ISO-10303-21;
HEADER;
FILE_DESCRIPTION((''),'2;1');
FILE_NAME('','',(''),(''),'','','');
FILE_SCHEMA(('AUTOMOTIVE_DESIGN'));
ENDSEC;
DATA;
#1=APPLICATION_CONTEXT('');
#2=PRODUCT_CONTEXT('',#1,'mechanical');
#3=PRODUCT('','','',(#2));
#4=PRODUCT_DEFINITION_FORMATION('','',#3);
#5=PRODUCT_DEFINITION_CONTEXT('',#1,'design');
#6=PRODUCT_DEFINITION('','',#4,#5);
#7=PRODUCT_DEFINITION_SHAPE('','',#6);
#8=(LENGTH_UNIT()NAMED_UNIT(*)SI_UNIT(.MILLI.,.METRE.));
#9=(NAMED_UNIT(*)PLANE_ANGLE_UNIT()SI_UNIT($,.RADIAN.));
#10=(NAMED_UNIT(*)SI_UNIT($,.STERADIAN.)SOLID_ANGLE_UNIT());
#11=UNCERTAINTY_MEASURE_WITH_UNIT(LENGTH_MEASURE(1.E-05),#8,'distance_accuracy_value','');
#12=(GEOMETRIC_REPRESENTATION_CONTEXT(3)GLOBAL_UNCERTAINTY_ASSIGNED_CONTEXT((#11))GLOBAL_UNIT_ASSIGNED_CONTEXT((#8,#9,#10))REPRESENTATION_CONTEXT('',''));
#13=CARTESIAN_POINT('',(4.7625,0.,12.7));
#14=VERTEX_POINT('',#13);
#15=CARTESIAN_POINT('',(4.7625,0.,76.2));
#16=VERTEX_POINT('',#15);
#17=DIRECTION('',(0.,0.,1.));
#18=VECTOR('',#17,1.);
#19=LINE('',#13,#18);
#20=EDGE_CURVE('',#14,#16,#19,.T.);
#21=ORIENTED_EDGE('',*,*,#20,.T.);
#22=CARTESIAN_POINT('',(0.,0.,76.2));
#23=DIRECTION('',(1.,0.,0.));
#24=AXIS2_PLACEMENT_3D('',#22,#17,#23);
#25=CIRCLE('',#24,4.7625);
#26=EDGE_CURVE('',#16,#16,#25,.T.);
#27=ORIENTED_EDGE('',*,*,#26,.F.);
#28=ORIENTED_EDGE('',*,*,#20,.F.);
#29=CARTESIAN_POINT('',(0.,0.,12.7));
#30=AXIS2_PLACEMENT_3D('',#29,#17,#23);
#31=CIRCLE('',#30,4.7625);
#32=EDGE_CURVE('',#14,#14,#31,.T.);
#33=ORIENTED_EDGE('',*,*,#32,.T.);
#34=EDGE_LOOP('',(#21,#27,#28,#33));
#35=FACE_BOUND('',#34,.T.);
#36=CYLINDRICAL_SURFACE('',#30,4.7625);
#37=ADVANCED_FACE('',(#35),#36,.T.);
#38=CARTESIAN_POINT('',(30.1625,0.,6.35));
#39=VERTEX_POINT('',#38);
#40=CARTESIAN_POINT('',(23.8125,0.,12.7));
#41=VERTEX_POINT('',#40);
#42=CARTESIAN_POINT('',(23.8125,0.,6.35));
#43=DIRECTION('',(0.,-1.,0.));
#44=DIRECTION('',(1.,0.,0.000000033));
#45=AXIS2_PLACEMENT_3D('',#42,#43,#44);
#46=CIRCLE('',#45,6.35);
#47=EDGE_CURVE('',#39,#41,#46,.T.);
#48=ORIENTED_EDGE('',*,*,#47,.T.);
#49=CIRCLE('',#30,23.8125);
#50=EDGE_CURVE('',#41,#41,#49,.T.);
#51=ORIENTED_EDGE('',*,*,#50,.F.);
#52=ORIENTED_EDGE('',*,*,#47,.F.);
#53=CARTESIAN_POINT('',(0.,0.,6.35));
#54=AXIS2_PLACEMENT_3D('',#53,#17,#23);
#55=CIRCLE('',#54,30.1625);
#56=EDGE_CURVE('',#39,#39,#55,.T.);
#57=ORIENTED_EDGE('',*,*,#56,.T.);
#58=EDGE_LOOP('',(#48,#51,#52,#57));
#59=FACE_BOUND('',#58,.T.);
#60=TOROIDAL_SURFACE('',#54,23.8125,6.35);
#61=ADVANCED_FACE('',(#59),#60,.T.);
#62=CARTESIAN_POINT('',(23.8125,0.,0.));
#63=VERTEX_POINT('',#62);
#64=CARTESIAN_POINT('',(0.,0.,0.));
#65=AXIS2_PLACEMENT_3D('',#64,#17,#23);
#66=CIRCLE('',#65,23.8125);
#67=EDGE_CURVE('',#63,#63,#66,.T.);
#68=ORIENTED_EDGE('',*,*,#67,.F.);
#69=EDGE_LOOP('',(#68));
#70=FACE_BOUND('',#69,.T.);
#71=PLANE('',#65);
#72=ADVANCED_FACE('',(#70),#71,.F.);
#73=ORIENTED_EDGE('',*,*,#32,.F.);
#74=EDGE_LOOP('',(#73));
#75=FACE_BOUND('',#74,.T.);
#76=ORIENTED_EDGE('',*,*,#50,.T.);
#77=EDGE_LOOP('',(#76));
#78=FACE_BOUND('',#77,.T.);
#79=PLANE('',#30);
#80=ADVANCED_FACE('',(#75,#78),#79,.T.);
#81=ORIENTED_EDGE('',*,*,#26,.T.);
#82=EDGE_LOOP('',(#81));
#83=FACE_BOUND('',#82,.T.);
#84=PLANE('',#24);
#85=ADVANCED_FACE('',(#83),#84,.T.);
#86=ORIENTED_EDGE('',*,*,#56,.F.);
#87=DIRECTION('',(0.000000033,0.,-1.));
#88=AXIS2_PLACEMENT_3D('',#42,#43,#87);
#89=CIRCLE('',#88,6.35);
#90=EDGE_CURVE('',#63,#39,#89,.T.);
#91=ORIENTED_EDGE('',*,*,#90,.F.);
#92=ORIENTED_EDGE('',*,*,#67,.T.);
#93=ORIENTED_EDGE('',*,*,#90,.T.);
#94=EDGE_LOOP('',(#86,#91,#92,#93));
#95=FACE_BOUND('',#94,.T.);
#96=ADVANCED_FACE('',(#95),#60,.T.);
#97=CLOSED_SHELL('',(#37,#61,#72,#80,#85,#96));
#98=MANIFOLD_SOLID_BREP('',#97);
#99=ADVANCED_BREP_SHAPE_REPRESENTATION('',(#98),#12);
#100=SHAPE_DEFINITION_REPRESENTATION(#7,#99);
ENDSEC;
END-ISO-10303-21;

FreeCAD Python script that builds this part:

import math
import FreeCAD as App
import Part
import Sketcher
Q = App.Units.Quantity

doc = App.newDocument("Part")
body = doc.addObject("PartDesign::Body", "Body")

sketch1 = body.newObject("Sketcher::SketchObject", "Sketch")
sketch1.AttachmentSupport = (doc.getObject("XZ_Plane"), [""])
sketch1.MapMode = "FlatFace"
sketch1.addGeometry([
    Part.LineSegment(App.Vector(0, 76.2, 0), App.Vector(0, 0, 0)),
    Part.LineSegment(App.Vector(0, 0, 0), App.Vector(23.8, 0, 0)),
    Part.ArcOfCircle(Part.Circle(App.Vector(23.8, 6.4, 0), App.Vector(0, 0, 1), 6.4), math.radians(-90), math.radians(0)),
    Part.ArcOfCircle(Part.Circle(App.Vector(23.8, 6.3, 0), App.Vector(0, 0, 1), 6.4), math.radians(0), math.radians(90)),
    Part.LineSegment(App.Vector(23.8, 12.7, 0), App.Vector(4.8, 12.7, 0)),
    Part.LineSegment(App.Vector(4.8, 12.7, 0), App.Vector(4.8, 76.2, 0)),
    Part.LineSegment(App.Vector(4.8, 76.2, 0), App.Vector(0, 76.2, 0)),
], False)
sketch1.addConstraint([
    Sketcher.Constraint("Coincident", 0, 2, 1, 1),
    Sketcher.Constraint("Tangent", 1, 2, 2, 1),
    Sketcher.Constraint("Tangent", 2, 2, 3, 1),
    Sketcher.Constraint("Tangent", 3, 2, 4, 1),
    Sketcher.Constraint("Coincident", 4, 2, 5, 1),
    Sketcher.Constraint("Coincident", 5, 2, 6, 1),
    Sketcher.Constraint("Coincident", 6, 2, 0, 1),
    Sketcher.Constraint("Vertical", 0),
    Sketcher.Constraint("Horizontal", 1),
    Sketcher.Constraint("Horizontal", 4),
    Sketcher.Constraint("Vertical", 5),
    Sketcher.Constraint("Horizontal", 6),
    Sketcher.Constraint("Coincident", 0, 2, -1, 1),
    Sketcher.Constraint("Equal", 2, 3),
    Sketcher.Constraint("Horizontal", 3, 3, 2, 2),
    Sketcher.Constraint("DistanceY", 0, 2, 0, 1, Q("3 in")),
    Sketcher.Constraint("Radius", 2, Q("0.25 in")),
    Sketcher.Constraint("DistanceX", 5, 2, 2, 2, Q("1 in")),
    Sketcher.Constraint("DistanceX", 1, 1, 1, 2, Q("0.9375 in")),
])
revolution = body.newObject("PartDesign::Revolution", "Revolution")
revolution.Profile = sketch1
revolution.ReferenceAxis = (sketch1, ["V_Axis"])
revolution.Angle = 360

doc.recompute()
